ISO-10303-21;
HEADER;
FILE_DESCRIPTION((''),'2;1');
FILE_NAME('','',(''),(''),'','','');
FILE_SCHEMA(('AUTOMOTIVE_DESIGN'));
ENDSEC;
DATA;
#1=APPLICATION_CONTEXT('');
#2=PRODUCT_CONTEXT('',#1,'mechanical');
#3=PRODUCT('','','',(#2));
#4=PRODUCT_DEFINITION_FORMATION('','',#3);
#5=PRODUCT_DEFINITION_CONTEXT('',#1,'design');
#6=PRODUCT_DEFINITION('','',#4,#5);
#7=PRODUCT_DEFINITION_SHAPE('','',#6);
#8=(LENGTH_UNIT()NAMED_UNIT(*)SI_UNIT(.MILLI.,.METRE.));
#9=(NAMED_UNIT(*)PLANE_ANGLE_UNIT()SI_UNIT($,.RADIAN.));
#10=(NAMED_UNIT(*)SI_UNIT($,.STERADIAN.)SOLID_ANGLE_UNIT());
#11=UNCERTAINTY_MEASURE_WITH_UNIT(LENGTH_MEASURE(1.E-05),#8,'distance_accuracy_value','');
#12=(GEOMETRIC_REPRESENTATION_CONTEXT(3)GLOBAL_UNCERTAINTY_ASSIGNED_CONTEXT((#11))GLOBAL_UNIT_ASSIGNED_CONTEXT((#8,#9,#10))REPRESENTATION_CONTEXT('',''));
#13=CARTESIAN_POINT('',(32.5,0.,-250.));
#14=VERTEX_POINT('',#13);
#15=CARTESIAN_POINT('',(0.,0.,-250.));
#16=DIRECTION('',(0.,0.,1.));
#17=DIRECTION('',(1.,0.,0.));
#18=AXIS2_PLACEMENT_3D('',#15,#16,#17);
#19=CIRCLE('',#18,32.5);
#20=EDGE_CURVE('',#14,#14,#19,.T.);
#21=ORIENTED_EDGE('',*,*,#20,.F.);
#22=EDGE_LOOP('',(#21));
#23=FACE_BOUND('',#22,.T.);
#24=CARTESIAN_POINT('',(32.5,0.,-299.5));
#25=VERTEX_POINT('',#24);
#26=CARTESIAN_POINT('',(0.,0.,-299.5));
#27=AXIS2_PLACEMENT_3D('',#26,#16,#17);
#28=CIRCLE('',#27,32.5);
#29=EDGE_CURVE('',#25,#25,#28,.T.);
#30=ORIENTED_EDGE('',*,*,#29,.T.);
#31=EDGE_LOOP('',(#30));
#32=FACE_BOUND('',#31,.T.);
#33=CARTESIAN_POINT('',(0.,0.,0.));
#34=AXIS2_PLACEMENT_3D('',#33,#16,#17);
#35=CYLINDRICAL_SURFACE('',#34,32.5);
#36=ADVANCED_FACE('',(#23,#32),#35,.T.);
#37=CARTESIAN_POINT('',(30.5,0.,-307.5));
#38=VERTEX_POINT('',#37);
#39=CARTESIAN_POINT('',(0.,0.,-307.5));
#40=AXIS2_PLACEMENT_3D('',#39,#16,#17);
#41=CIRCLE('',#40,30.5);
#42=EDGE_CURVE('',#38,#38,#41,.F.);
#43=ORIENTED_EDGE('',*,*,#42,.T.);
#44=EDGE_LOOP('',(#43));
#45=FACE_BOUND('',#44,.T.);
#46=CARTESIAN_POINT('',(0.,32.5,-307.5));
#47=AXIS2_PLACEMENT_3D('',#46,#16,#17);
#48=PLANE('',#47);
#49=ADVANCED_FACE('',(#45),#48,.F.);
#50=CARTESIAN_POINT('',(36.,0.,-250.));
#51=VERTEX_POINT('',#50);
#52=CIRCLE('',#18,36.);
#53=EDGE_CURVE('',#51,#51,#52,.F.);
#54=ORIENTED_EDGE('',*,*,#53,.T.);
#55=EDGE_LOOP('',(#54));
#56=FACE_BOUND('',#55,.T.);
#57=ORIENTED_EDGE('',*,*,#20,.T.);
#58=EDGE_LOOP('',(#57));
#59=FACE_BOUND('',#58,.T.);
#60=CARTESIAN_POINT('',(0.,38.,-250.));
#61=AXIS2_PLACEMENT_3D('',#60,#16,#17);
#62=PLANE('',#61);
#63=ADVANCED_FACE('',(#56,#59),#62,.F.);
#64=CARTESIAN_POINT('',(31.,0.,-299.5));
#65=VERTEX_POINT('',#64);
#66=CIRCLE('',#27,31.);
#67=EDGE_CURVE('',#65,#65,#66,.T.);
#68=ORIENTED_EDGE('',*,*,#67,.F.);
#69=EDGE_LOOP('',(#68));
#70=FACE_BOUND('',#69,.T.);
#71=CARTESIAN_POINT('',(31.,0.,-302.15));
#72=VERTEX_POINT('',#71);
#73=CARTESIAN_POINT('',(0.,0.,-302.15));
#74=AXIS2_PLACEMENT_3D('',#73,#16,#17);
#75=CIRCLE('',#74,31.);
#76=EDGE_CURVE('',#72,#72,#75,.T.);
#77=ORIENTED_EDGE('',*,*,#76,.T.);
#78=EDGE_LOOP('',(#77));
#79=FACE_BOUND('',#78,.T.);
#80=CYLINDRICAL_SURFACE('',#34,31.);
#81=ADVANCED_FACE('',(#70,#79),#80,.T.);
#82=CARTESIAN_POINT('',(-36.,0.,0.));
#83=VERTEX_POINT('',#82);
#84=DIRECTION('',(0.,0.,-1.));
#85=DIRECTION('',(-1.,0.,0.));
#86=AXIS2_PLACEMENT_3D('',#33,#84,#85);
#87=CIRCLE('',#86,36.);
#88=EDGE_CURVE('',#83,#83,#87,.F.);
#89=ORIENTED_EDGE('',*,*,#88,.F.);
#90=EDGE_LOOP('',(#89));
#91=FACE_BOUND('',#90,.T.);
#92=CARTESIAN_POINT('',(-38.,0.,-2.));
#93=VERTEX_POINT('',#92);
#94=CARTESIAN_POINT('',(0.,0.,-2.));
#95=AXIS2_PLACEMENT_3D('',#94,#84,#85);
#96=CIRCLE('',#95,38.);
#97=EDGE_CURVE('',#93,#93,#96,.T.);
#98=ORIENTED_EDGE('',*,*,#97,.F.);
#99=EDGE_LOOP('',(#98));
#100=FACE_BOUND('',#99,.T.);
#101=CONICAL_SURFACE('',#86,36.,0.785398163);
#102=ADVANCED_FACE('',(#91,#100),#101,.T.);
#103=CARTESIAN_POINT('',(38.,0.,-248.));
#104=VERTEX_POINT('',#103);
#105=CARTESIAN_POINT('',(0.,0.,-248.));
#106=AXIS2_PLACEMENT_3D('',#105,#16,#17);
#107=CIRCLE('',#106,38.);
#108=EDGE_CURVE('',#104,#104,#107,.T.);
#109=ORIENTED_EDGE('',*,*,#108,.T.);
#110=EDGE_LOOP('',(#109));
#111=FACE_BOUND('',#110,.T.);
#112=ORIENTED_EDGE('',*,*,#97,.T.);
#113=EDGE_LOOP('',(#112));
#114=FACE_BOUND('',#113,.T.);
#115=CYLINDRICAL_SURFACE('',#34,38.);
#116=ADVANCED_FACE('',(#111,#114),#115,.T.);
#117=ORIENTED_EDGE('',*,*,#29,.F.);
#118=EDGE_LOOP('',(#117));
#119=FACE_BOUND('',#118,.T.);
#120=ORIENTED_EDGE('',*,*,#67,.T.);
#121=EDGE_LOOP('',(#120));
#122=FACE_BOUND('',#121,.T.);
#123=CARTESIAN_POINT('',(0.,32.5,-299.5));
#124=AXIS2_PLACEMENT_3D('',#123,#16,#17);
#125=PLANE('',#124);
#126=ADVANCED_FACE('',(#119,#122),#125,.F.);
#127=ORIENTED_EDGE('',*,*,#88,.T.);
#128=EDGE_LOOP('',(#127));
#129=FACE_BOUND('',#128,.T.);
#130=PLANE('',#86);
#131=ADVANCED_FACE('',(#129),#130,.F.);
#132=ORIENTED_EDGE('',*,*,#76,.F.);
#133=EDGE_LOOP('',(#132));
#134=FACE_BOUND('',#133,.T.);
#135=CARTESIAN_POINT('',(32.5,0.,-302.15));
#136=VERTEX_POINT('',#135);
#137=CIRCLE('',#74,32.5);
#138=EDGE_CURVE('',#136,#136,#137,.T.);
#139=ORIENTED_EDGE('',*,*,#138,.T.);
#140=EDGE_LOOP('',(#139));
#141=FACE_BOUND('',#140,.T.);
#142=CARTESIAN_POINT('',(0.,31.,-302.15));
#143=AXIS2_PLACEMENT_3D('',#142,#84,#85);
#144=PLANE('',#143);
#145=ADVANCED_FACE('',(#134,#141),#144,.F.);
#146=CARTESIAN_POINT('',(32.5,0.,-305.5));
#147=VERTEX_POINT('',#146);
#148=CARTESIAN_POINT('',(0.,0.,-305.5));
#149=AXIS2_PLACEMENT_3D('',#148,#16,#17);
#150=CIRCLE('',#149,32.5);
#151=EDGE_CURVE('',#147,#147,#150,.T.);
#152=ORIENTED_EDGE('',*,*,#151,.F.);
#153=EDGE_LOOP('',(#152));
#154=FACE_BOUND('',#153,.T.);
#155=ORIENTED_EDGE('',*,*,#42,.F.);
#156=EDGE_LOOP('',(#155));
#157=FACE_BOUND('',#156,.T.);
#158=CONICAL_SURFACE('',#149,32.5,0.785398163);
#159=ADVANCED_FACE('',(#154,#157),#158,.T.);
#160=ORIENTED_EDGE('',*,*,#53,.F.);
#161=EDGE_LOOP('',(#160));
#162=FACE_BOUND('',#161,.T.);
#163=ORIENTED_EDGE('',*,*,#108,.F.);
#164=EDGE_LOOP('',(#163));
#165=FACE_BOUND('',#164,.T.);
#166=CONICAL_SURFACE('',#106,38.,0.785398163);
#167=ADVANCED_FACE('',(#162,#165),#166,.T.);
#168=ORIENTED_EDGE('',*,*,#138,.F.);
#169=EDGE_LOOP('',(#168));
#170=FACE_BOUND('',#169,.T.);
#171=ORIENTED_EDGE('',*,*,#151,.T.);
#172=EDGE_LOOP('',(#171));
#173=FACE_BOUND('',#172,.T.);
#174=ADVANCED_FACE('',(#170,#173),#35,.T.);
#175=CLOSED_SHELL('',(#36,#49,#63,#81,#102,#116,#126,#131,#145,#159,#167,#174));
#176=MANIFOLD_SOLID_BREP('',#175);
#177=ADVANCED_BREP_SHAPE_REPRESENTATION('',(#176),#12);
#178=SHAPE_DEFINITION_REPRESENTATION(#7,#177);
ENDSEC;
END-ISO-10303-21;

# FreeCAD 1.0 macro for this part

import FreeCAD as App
import Part
import Sketcher
from FreeCAD import Vector


def edges_at(feature, points):
    """Names of the edges that pass closest to the given points."""
    edges = feature.Shape.Edges
    near = lambda p: min(range(len(edges)), key=lambda i: edges[i].distToShape(Part.Vertex(*p))[0])
    return sorted({f"Edge{near(p) + 1}" for p in points})

doc = App.newDocument("Part")
params = doc.addObject("Spreadsheet::Sheet", "Params")
for row, (alias, value) in enumerate([
    ("sketch1_width", "38 mm"),
    ("sketch1_height", "250 mm"),
    ("sketch1_width2", "32.5 mm"),
    ("sketch1_width3", "1.5 mm"),
    ("sketch1_height2", "307.5 mm"),
    ("revolution_angle", "360 deg"),
    ("chamfer_size", "2 mm"),
], start=1):
    params.set(f"A{row}", alias)
    params.set(f"B{row}", "=" + value)
    params.setAlias(f"B{row}", alias)

body = doc.addObject("PartDesign::Body", "Body")

sketch1 = body.newObject("Sketcher::SketchObject", "Sketch")
sketch1.AttachmentSupport = (doc.getObject("YZ_Plane"), [""])
sketch1.MapMode = "FlatFace"
sketch1.addGeometry([
    Part.LineSegment(Vector(38, 0, 0), Vector(0, 0, 0)),
    Part.LineSegment(Vector(0, 0, 0), Vector(0, -307.5, 0)),
    Part.LineSegment(Vector(0, -307.5, 0), Vector(32.5, -307.5, 0)),
    Part.LineSegment(Vector(32.5, -307.5, 0), Vector(32.5, -302.15, 0)),
    Part.LineSegment(Vector(32.5, -302.15, 0), Vector(31, -302.15, 0)),
    Part.LineSegment(Vector(31, -302.15, 0), Vector(31, -299.5, 0)),
    Part.LineSegment(Vector(31, -299.5, 0), Vector(32.5, -299.5, 0)),
    Part.LineSegment(Vector(32.5, -299.5, 0), Vector(32.5, -250, 0)),
    Part.LineSegment(Vector(32.5, -250, 0), Vector(38, -250, 0)),
    Part.LineSegment(Vector(38, -250, 0), Vector(38, 0, 0)),
], False)
sketch1.addConstraint([
    Sketcher.Constraint("Coincident", 0, 2, 1, 1),
    Sketcher.Constraint("Coincident", 1, 2, 2, 1),
    Sketcher.Constraint("Coincident", 2, 2, 3, 1),
    Sketcher.Constraint("Coincident", 3, 2, 4, 1),
    Sketcher.Constraint("Coincident", 4, 2, 5, 1),
    Sketcher.Constraint("Coincident", 5, 2, 6, 1),
    Sketcher.Constraint("Coincident", 6, 2, 7, 1),
    Sketcher.Constraint("Coincident", 7, 2, 8, 1),
    Sketcher.Constraint("Coincident", 8, 2, 9, 1),
    Sketcher.Constraint("Coincident", 9, 2, 0, 1),
    Sketcher.Constraint("Horizontal", 0),
    Sketcher.Constraint("Vertical", 1),
    Sketcher.Constraint("Horizontal", 2),
    Sketcher.Constraint("Vertical", 3),
    Sketcher.Constraint("Horizontal", 4),
    Sketcher.Constraint("Vertical", 5),
    Sketcher.Constraint("Horizontal", 6),
    Sketcher.Constraint("Vertical", 7),
    Sketcher.Constraint("Horizontal", 8),
    Sketcher.Constraint("Vertical", 9),
    Sketcher.Constraint("Coincident", 0, 2, -1, 1),
    Sketcher.Constraint("Vertical", 3, 2, 6, 2),
    Sketcher.Constraint("DistanceX", 0, 2, 0, 1, 38.0),
    Sketcher.Constraint("DistanceY", 9, 1, 9, 2, 250.0),
    Sketcher.Constraint("DistanceX", 2, 1, 2, 2, 32.5),
    Sketcher.Constraint("DistanceX", 4, 2, 4, 1, 1.5),
    Sketcher.Constraint("DistanceY", 1, 2, 1, 1, 307.5),
    Sketcher.Constraint("DistanceY", 7, 1, 7, 2, 49.5),
    Sketcher.Constraint("DistanceY", 3, 1, 3, 2, 5.35),
])
sketch1.setExpression("Constraints[22]", "Params.sketch1_width")
sketch1.setExpression("Constraints[23]", "Params.sketch1_height")
sketch1.setExpression("Constraints[24]", "Params.sketch1_width2")
sketch1.setExpression("Constraints[25]", "Params.sketch1_width3")
sketch1.setExpression("Constraints[26]", "Params.sketch1_height2")
revolution = body.newObject("PartDesign::Revolution", "Revolution")
revolution.Profile = sketch1
revolution.ReferenceAxis = (sketch1, ["V_Axis"])
revolution.setExpression("Angle", "Params.revolution_angle")
doc.recompute()

chamfer = body.newObject("PartDesign::Chamfer", "Chamfer")
chamfer.Base = (revolution, edges_at(revolution, [(-38, 0, -250), (-38, 0, 0), (-32.5, 0, -307.5)]))
chamfer.setExpression("Size", "Params.chamfer_size")

doc.recompute()
